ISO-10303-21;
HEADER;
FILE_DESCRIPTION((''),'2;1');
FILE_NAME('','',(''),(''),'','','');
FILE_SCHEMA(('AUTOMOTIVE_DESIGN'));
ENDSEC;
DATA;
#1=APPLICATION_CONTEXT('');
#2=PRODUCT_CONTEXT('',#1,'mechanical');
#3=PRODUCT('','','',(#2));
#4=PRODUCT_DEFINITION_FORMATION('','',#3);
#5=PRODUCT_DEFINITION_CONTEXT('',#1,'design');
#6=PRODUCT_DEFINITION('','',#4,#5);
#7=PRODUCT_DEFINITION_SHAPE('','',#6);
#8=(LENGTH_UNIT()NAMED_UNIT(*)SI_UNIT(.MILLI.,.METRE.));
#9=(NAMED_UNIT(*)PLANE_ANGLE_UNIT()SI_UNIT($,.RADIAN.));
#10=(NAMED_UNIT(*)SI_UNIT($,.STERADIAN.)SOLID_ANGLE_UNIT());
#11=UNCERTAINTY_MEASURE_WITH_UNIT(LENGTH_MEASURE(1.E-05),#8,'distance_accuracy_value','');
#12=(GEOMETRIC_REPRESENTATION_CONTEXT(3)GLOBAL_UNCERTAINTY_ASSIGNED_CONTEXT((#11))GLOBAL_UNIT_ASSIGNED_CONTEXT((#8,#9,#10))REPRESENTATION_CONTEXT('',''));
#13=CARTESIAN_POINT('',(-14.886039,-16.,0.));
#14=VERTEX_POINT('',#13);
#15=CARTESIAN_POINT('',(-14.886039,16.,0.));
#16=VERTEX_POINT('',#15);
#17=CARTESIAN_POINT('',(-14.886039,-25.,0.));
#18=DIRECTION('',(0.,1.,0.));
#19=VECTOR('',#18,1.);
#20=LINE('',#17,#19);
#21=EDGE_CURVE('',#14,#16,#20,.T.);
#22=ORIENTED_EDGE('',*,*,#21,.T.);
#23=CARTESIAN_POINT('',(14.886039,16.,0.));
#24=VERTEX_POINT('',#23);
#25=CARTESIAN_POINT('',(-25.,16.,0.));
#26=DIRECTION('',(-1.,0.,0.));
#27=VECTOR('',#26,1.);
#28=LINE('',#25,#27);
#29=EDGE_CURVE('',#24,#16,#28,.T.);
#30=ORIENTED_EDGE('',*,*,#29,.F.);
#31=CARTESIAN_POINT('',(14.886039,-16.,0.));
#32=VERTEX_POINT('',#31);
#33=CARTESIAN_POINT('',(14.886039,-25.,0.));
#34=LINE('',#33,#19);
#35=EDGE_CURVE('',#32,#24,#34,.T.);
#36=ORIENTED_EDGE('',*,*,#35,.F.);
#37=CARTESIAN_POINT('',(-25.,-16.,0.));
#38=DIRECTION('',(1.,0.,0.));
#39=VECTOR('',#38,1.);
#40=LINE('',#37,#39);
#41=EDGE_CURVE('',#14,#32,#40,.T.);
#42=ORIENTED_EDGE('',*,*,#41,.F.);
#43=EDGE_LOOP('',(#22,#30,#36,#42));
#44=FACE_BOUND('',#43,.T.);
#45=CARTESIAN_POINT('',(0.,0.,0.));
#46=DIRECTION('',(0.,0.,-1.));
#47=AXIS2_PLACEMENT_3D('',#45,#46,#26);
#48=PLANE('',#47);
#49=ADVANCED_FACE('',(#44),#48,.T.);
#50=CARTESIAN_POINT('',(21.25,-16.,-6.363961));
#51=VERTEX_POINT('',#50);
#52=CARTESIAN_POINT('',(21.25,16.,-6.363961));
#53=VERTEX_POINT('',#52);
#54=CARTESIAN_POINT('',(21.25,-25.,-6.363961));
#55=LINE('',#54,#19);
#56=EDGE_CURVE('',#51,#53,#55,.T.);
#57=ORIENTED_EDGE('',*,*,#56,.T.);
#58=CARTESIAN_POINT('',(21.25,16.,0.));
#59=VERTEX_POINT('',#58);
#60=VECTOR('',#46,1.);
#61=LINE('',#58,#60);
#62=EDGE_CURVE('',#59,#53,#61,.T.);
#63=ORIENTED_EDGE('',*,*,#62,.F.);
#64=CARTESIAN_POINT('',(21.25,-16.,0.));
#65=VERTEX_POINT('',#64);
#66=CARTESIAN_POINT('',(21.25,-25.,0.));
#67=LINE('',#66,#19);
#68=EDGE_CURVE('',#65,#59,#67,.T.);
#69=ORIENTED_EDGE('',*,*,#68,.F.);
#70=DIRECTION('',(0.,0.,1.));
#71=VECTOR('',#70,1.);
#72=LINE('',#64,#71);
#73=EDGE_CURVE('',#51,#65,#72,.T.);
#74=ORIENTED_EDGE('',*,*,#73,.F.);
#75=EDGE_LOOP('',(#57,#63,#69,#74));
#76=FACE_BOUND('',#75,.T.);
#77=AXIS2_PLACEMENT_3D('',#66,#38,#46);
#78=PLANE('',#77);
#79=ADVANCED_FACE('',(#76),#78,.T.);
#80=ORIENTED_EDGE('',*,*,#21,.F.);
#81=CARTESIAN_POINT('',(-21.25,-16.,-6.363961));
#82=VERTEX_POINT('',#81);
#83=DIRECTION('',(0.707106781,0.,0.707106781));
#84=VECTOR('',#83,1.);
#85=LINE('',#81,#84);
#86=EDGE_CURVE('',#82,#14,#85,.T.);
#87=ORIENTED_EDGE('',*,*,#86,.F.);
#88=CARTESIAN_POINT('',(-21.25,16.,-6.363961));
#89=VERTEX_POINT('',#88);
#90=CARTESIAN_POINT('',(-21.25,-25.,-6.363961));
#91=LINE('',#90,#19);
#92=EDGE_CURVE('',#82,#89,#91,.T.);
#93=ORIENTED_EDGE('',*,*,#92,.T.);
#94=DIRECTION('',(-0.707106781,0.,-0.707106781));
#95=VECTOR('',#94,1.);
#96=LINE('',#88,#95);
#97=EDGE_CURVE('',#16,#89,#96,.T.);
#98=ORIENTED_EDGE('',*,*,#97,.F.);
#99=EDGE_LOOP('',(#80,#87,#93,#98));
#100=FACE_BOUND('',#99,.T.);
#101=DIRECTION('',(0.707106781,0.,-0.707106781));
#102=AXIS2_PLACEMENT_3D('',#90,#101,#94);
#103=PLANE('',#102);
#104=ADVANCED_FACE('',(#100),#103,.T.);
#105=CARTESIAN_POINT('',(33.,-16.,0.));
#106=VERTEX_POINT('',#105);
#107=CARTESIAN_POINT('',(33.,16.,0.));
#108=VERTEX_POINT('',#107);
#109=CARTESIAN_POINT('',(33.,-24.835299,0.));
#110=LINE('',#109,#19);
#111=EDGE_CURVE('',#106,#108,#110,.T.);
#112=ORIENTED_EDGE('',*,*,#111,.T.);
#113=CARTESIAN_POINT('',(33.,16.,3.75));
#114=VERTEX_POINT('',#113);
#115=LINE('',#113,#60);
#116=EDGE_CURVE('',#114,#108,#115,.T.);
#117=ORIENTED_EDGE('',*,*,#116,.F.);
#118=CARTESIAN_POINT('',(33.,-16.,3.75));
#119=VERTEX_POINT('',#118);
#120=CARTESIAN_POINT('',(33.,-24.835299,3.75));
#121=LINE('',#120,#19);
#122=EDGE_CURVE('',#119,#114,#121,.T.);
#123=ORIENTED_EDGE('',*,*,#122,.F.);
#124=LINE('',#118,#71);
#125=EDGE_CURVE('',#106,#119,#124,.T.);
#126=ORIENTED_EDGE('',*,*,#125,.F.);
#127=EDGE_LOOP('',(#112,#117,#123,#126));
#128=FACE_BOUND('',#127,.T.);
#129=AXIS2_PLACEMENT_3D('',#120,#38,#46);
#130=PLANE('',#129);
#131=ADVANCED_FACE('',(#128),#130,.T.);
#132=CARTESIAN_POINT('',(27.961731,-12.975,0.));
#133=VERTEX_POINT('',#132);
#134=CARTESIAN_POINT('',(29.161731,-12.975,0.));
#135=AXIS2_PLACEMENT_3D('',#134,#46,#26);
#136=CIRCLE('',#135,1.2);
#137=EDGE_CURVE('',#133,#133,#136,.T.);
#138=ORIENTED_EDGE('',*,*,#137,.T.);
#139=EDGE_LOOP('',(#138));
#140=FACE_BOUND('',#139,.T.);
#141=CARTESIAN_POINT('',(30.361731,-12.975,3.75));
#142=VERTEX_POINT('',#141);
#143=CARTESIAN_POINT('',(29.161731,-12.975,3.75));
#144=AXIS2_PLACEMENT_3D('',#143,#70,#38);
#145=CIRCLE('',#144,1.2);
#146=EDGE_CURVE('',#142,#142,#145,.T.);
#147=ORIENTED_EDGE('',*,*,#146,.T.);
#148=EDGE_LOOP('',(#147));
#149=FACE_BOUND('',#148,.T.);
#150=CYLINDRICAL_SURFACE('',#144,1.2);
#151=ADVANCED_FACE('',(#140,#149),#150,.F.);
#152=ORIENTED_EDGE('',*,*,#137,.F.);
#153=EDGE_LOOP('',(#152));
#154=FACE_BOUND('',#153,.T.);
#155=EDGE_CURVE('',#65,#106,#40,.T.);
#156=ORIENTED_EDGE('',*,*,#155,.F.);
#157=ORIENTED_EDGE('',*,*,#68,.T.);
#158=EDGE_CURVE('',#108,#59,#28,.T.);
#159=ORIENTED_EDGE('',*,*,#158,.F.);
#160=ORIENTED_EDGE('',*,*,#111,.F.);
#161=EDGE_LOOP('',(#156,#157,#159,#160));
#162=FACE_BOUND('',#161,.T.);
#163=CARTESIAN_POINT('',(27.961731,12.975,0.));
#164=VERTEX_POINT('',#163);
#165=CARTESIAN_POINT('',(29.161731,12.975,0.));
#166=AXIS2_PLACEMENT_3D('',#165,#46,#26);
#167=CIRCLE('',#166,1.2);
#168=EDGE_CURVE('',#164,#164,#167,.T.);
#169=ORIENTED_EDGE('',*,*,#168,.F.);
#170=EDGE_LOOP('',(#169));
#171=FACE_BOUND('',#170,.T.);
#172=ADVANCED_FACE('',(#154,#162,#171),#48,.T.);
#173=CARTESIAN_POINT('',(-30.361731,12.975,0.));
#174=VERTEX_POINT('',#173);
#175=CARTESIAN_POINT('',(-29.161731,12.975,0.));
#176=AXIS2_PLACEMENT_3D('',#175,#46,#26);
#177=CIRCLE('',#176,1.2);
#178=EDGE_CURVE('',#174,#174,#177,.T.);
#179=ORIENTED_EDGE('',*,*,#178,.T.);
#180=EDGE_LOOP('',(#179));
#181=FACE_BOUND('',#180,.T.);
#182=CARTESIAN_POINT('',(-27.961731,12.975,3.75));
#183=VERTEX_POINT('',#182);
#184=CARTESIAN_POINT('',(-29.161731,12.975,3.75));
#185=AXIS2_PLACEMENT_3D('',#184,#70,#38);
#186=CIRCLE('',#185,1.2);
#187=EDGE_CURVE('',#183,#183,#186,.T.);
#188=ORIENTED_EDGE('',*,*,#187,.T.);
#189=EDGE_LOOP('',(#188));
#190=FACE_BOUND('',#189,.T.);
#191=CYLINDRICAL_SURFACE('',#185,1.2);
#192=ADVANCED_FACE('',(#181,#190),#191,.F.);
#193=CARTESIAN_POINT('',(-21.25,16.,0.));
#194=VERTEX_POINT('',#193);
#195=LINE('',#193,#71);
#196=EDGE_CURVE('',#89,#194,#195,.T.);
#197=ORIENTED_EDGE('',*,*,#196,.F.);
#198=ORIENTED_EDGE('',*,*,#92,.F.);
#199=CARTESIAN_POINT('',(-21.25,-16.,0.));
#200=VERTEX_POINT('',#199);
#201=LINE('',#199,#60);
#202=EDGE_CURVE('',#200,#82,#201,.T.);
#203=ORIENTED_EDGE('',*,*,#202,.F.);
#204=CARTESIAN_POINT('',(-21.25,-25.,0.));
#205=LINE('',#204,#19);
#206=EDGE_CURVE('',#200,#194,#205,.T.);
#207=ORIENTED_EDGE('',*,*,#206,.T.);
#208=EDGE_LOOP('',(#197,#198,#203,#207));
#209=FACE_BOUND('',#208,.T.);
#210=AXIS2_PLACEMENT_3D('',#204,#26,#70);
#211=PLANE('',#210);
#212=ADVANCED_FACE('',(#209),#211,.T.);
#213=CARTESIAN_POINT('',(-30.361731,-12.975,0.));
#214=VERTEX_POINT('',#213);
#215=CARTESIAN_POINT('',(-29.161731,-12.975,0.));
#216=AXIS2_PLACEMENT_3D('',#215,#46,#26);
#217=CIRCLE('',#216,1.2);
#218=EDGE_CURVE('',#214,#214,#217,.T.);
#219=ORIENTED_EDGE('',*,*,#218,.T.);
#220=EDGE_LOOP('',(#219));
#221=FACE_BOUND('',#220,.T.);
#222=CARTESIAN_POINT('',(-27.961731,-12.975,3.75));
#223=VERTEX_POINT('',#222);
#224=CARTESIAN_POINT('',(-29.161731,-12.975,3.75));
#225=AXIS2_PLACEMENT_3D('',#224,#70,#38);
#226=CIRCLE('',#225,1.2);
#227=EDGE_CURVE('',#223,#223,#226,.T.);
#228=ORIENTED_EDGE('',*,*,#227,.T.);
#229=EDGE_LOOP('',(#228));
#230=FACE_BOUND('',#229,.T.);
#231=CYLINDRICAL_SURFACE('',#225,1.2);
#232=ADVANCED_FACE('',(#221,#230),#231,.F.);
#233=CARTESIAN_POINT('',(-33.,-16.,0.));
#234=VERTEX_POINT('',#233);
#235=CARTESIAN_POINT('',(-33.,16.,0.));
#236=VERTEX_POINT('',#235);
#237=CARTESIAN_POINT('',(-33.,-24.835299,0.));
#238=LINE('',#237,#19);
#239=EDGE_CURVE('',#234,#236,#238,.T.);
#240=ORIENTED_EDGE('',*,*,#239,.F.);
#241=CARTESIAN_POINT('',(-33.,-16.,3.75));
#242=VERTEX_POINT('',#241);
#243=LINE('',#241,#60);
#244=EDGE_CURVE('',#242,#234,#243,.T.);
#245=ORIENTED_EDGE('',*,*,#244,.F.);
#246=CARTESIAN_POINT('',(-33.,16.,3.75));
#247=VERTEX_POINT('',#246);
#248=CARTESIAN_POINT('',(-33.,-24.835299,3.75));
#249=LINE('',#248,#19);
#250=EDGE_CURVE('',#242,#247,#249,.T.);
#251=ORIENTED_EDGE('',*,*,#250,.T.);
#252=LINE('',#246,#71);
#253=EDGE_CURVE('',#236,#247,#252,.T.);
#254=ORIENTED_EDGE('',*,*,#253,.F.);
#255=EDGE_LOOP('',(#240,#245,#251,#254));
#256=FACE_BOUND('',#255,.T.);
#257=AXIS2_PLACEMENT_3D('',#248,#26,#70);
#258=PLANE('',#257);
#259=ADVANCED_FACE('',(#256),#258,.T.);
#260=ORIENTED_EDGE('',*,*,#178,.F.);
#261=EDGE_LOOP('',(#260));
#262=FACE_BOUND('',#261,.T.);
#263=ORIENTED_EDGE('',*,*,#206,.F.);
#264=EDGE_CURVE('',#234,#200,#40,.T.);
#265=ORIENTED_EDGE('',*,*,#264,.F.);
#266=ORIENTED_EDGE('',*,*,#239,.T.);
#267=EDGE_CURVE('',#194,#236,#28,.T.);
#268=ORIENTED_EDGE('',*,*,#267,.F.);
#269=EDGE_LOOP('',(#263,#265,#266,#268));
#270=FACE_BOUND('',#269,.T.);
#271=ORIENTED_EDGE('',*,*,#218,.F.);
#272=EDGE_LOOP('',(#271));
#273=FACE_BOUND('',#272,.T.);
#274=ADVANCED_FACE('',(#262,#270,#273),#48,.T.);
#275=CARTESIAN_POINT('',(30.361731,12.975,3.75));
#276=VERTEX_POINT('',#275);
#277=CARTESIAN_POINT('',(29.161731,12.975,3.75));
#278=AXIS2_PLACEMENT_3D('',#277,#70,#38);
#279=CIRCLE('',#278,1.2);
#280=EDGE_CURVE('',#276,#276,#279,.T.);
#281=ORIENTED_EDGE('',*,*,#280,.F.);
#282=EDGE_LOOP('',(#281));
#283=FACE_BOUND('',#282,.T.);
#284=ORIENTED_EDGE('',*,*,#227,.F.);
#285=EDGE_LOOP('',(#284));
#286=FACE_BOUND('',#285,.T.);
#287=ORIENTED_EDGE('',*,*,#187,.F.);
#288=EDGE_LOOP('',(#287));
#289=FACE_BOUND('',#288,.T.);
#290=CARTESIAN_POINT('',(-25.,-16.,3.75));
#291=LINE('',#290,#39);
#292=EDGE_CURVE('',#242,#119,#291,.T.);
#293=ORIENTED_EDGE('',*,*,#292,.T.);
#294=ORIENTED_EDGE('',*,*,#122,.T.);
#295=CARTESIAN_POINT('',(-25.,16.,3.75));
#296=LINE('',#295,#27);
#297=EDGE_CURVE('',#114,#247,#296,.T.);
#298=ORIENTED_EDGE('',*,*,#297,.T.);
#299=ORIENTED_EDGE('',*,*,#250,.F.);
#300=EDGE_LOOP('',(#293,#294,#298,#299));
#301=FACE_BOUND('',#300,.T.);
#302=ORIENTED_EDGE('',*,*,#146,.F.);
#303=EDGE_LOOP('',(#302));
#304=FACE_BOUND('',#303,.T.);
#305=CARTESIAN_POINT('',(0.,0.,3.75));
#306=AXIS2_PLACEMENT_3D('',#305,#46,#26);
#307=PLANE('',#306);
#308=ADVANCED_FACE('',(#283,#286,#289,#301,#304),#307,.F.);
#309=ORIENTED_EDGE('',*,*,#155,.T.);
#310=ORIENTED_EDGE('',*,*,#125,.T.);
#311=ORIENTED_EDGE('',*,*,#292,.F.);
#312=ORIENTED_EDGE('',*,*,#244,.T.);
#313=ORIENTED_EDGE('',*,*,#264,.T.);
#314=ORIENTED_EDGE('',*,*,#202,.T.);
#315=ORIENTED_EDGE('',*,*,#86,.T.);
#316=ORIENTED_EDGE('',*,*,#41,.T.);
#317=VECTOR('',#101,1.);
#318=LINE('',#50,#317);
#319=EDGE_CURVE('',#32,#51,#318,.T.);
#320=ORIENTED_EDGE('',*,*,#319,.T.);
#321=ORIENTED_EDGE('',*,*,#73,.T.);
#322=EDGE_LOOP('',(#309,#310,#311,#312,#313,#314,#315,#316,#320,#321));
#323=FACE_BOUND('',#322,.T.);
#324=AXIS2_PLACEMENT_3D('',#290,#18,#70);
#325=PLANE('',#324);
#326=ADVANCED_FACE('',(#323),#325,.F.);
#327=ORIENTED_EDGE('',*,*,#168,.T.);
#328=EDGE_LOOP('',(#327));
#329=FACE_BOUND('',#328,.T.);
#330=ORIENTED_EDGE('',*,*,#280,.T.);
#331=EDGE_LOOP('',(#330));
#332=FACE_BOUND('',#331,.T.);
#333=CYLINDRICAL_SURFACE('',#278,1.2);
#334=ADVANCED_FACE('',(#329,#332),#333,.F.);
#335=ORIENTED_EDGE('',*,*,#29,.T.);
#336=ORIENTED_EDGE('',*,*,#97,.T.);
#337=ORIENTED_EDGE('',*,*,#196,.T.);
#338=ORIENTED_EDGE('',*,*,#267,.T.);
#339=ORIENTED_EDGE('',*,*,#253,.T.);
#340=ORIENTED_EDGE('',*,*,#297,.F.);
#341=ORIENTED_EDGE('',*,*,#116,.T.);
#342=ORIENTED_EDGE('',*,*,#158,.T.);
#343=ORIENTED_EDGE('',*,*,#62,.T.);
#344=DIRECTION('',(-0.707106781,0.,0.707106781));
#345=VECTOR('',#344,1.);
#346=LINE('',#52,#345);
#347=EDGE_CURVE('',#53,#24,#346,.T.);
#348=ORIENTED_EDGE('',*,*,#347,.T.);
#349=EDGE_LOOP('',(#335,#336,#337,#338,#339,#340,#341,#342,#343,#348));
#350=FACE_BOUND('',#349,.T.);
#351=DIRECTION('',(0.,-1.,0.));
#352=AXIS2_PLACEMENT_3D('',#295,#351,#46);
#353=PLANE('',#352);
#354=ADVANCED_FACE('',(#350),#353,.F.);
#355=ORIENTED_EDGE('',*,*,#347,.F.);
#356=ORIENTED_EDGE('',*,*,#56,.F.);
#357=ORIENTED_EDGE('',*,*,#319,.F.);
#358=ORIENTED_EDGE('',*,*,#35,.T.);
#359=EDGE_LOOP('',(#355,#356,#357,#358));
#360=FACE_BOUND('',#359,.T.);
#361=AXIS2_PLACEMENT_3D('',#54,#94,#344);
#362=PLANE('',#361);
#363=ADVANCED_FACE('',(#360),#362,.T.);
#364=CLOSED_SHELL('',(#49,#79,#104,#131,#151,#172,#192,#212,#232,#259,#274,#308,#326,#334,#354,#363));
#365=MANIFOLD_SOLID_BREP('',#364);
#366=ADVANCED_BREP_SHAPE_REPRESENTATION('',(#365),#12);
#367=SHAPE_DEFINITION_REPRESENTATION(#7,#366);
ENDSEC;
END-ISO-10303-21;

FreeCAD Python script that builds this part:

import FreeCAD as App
import Part
import Sketcher
from FreeCAD import Vector


def add_polygon(sketch, points):
    """Adds a closed chain of lines whose ends are joined by coincident constraints."""
    first, n = sketch.GeometryCount, len(points)
    for a, b in zip(points, points[1:] + points[:1]):
        sketch.addGeometry(Part.LineSegment(App.Vector(*a, 0), App.Vector(*b, 0)), False)
    for i in range(n):
        sketch.addConstraint(Sketcher.Constraint("Coincident", first + i, 2, first + (i + 1) % n, 1))

doc = App.newDocument("Part")
body = doc.addObject("PartDesign::Body", "Body")

# Sketch on XY plane
sketch1 = body.newObject("Sketcher::SketchObject", "Sketch")
sketch1.AttachmentSupport = (doc.getObject("XY_Plane"), [""])
sketch1.MapMode = "FlatFace"
add_polygon(sketch1, [(-25, 16), (-25, -16), (25, -16), (25, 16)])  # lines 0-3
sketch1.addConstraint([
    Sketcher.Constraint("Vertical", 0),
    Sketcher.Constraint("Horizontal", 1),
    Sketcher.Constraint("Vertical", 2),
    Sketcher.Constraint("Horizontal", 3),
    Sketcher.Constraint("Symmetric", 0, 2, 2, 2, -1, 1),
    Sketcher.Constraint("DistanceX", 1, 1, 1, 2, 50.0),
    Sketcher.Constraint("DistanceY", 0, 2, 0, 1, 32.0),
])
pad1 = body.newObject("PartDesign::Pad", "Pad")
pad1.Profile = sketch1
pad1.Length = 3.75

# Sketch on XZ plane
sketch2 = body.newObject("Sketcher::SketchObject", "Sketch001")
sketch2.AttachmentSupport = (doc.getObject("XZ_Plane"), [""])
sketch2.MapMode = "FlatFace"
sketch2.AttachmentOffset = App.Placement(Vector(0, 0, -16), App.Rotation())
add_polygon(sketch2, [(-21, -6), (-21, 0), (-15, 0)])  # lines 0-2
add_polygon(sketch2, [(15, 0), (21, 0), (21, -6)])  # lines 3-5
sketch2.addConstraint([
    Sketcher.Constraint("Vertical", 0),
    Sketcher.Constraint("Horizontal", 1),
    Sketcher.Constraint("Horizontal", 3),
    Sketcher.Constraint("Vertical", 4),
    Sketcher.Constraint("Symmetric", 0, 2, 3, 2, -1, 1),
    Sketcher.Constraint("Symmetric", 1, 2, 5, 2, -2),
    Sketcher.Constraint("Perpendicular", 2, 5),
    Sketcher.Constraint("Horizontal", 2, 2, 4, 2),
    Sketcher.Constraint("Distance", 2, 9.0),
    Sketcher.Constraint("DistanceX", 0, 2, 3, 2, 42.5),
])
pad2 = body.newObject("PartDesign::Pad", "Pad001")
pad2.Profile = sketch2
pad2.Length = 32

# Sketch on XZ plane
sketch3 = body.newObject("Sketcher::SketchObject", "Sketch002")
sketch3.AttachmentSupport = (doc.getObject("XZ_Plane"), [""])
sketch3.MapMode = "FlatFace"
sketch3.AttachmentOffset = App.Placement(Vector(0, 0, -16), App.Rotation())
add_polygon(sketch3, [(25, 0), (25, 3.8), (33, 3.8), (33, 0)])  # lines 0-3
add_polygon(sketch3, [(-33, 0), (-33, 3.8), (-25, 3.8), (-25, 0)])  # lines 4-7
sketch3.addConstraint([
    Sketcher.Constraint("Vertical", 0),
    Sketcher.Constraint("Horizontal", 1),
    Sketcher.Constraint("Vertical", 2),
    Sketcher.Constraint("Horizontal", 3),
    Sketcher.Constraint("Vertical", 4),
    Sketcher.Constraint("Horizontal", 5),
    Sketcher.Constraint("Vertical", 6),
    Sketcher.Constraint("Horizontal", 7),
    Sketcher.Constraint("Symmetric", 3, 2, 6, 2, -1, 1),
    Sketcher.Constraint("Symmetric", 1, 2, 4, 2, -2),
    Sketcher.Constraint("PointOnObject", 2, 2, -1),
    Sketcher.Constraint("DistanceX", 1, 1, 1, 2, 8.0),
    Sketcher.Constraint("DistanceX", -1, 1, 0, 2, 25.0),
    Sketcher.Constraint("DistanceY", 0, 1, 0, 2, 3.75),
])
pad3 = body.newObject("PartDesign::Pad", "Pad002")
pad3.Profile = sketch3
pad3.Length = 32

# Sketch on XY plane
sketch4 = body.newObject("Sketcher::SketchObject", "Sketch003")
sketch4.AttachmentSupport = (doc.getObject("XY_Plane"), [""])
sketch4.MapMode = "FlatFace"
sketch4.AttachmentOffset = App.Placement(Vector(0, 0, 3.75), App.Rotation())
sketch4.addGeometry([
    Part.Circle(Vector(-29.2, -13, 0), Vector(0, 0, 1), 1.2),
    Part.Circle(Vector(-29.2, 13, 0), Vector(0, 0, 1), 1.2),
], False)
sketch4.addConstraint([
    Sketcher.Constraint("Equal", 0, 1),
    Sketcher.Constraint("Symmetric", 0, 3, 1, 3, -1),
    Sketcher.Constraint("Diameter", 0, 2.4),
    Sketcher.Constraint("DistanceY", 0, 3, 1, 3, 25.95),
    Sketcher.Constraint("DistanceX", 0, 3, -1, 1, 29.161731),
])
doc.recompute()
hole = body.newObject("PartDesign::Hole", "Hole")
hole.Profile = sketch4
hole.ThreadType = "None"
hole.Diameter = 2.4
hole.DepthType = "ThroughAll"
doc.recompute()

mirrored = body.newObject("PartDesign::Mirrored", "Mirrored")
mirrored.Originals = [hole]
mirrored.MirrorPlane = (doc.getObject("YZ_Plane"), [""])
body.Tip = mirrored

doc.recompute()
